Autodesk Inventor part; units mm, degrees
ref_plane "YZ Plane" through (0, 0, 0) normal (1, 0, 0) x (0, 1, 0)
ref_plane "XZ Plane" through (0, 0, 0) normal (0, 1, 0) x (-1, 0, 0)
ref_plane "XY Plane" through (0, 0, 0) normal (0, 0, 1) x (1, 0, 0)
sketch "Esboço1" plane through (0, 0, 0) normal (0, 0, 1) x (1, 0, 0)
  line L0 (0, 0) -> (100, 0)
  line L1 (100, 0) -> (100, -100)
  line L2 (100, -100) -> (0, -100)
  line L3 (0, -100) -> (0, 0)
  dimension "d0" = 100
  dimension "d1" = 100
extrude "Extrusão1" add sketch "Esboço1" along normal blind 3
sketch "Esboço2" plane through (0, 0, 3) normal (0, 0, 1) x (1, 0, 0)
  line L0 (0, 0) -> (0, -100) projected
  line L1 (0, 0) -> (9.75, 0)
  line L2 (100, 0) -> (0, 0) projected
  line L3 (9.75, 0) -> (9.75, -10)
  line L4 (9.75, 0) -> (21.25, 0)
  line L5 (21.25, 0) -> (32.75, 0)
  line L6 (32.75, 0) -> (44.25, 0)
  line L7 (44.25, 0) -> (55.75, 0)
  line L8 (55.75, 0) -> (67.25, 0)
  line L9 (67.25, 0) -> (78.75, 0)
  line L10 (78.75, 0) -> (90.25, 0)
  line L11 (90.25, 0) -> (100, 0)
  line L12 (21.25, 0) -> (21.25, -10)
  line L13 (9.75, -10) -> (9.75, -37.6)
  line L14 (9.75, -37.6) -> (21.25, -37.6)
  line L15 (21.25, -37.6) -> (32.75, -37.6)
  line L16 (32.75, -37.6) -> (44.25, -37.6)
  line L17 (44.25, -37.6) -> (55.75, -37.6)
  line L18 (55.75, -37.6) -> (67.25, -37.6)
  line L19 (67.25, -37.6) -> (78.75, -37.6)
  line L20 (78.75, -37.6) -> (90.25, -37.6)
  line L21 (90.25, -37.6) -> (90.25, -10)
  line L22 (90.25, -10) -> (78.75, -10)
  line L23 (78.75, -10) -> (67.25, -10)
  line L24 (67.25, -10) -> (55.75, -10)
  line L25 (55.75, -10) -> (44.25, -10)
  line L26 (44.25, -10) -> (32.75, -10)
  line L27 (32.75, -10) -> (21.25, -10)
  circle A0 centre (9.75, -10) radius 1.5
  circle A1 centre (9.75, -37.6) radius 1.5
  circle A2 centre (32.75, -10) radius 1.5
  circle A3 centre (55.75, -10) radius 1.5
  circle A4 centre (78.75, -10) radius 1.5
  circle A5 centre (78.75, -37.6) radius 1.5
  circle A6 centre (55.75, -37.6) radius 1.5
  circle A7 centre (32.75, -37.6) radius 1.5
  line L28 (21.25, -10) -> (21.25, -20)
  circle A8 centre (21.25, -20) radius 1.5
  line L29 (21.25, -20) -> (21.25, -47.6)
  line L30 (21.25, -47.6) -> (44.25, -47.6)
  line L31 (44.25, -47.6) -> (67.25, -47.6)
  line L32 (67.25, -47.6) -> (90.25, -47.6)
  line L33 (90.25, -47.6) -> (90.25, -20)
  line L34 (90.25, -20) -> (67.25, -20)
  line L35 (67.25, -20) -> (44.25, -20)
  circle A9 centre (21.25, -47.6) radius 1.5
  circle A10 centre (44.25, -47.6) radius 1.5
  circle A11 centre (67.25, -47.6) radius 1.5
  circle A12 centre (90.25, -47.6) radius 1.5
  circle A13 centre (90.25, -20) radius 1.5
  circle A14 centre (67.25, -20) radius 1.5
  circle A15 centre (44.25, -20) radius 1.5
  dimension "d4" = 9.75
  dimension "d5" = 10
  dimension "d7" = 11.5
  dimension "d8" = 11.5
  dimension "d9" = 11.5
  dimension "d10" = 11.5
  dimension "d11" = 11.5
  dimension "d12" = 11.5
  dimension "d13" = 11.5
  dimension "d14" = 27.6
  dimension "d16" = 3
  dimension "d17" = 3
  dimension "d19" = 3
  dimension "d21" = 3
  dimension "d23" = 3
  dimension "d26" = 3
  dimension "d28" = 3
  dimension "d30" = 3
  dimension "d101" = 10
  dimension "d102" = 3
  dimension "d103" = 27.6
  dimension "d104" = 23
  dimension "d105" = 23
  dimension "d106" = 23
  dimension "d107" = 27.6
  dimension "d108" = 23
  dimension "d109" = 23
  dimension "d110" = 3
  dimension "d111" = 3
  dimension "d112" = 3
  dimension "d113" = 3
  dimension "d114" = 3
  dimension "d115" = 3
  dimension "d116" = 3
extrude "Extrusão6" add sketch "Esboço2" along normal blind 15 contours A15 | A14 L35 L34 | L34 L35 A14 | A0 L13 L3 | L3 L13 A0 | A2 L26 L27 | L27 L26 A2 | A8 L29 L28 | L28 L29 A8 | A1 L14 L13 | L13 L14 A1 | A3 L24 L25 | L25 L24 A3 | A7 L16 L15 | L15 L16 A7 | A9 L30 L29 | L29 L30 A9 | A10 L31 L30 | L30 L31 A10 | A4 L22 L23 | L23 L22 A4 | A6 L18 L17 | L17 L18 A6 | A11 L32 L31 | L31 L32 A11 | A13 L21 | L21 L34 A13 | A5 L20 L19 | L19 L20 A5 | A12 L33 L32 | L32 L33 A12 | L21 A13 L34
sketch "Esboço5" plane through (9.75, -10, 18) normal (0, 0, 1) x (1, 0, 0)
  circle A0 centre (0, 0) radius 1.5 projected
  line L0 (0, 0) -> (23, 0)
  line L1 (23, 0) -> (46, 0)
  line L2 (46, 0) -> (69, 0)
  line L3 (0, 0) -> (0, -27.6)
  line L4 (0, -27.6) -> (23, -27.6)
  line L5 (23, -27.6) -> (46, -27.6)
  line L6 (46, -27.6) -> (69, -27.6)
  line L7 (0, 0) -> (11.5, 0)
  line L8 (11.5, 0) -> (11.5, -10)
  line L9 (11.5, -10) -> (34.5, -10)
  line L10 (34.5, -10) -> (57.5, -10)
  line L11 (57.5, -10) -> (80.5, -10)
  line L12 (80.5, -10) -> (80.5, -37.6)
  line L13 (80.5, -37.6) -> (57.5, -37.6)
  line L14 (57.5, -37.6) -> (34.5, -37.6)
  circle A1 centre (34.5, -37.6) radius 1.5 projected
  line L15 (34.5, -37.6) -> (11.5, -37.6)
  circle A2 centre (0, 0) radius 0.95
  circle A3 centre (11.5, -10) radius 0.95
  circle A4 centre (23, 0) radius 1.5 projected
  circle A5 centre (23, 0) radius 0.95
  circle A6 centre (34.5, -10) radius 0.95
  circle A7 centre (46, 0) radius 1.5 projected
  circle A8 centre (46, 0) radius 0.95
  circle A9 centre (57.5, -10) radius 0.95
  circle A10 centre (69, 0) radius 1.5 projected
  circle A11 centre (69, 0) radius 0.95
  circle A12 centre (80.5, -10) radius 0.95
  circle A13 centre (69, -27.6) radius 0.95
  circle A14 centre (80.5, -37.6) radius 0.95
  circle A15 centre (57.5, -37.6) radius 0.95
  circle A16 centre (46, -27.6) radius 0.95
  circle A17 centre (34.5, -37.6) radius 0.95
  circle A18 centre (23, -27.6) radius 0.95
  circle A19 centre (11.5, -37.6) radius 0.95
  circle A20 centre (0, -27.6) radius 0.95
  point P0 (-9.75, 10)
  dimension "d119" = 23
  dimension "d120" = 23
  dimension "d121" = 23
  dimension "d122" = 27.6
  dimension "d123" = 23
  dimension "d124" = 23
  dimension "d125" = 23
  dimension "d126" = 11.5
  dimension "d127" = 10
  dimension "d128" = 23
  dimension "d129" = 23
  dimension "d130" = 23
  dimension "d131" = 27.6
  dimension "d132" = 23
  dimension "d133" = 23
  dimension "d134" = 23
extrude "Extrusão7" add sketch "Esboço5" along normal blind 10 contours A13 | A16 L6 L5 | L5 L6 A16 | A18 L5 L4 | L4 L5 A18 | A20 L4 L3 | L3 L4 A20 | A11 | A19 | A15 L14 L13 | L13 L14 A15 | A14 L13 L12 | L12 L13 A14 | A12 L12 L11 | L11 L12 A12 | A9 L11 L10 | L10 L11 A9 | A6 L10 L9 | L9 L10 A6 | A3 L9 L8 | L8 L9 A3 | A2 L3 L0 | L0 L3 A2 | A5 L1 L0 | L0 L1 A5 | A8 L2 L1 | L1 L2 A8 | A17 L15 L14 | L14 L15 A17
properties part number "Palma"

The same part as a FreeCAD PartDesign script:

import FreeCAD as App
import Part
import Sketcher


def add_polygon(sketch, points):
    """Adds a closed chain of lines whose ends are joined by coincident constraints."""
    first, n = sketch.GeometryCount, len(points)
    for a, b in zip(points, points[1:] + points[:1]):
        sketch.addGeometry(Part.LineSegment(App.Vector(*a, 0), App.Vector(*b, 0)), False)
    for i in range(n):
        sketch.addConstraint(Sketcher.Constraint("Coincident", first + i, 2, first + (i + 1) % n, 1))

doc = App.newDocument("Part")
body = doc.addObject("PartDesign::Body", "Body")

# Sketch on XY plane
sketch1 = body.newObject("Sketcher::SketchObject", "Sketch")
sketch1.AttachmentSupport = (doc.getObject("XY_Plane"), [""])
sketch1.MapMode = "FlatFace"
add_polygon(sketch1, [(100, 0), (0, 0), (0, -100), (100, -100)])  # lines 0-3
sketch1.addConstraint(Sketcher.Constraint("Horizontal", 0))
sketch1.addConstraint(Sketcher.Constraint("Vertical", 1))
sketch1.addConstraint(Sketcher.Constraint("Horizontal", 2))
sketch1.addConstraint(Sketcher.Constraint("Vertical", 3))
sketch1.addConstraint(Sketcher.Constraint("Coincident", 0, 2, -1, 1))
sketch1.addConstraint(Sketcher.Constraint("Equal", 2, 1))
sketch1.addConstraint(Sketcher.Constraint("DistanceX", 0, 2, 0, 1, 100.0))
pad1 = body.newObject("PartDesign::Pad", "Pad")
pad1.Profile = sketch1
pad1.Length = 3

# Sketch on XY plane
sketch2 = body.newObject("Sketcher::SketchObject", "Sketch001")
sketch2.AttachmentSupport = (doc.getObject("XY_Plane"), [""])
sketch2.MapMode = "FlatFace"
sketch2.AttachmentOffset = App.Placement(App.Vector(0, 0, 3), App.Rotation())
sketch2.addGeometry(Part.Circle(App.Vector(44.2, -20, 0), App.Vector(0, 0, 1), 1.5), False)
sketch2.addGeometry(Part.Circle(App.Vector(67.2, -20, 0), App.Vector(0, 0, 1), 1.5), False)
sketch2.addGeometry(Part.Circle(App.Vector(9.8, -10, 0), App.Vector(0, 0, 1), 1.5), False)
sketch2.addGeometry(Part.Circle(App.Vector(32.8, -10, 0), App.Vector(0, 0, 1), 1.5), False)
sketch2.addGeometry(Part.Circle(App.Vector(21.2, -20, 0), App.Vector(0, 0, 1), 1.5), False)
sketch2.addGeometry(Part.Circle(App.Vector(9.8, -37.6, 0), App.Vector(0, 0, 1), 1.5), False)
sketch2.addGeometry(Part.Circle(App.Vector(55.8, -10, 0), App.Vector(0, 0, 1), 1.5), False)
sketch2.addGeometry(Part.Circle(App.Vector(32.8, -37.6, 0), App.Vector(0, 0, 1), 1.5), False)
sketch2.addGeometry(Part.Circle(App.Vector(21.2, -47.6, 0), App.Vector(0, 0, 1), 1.5), False)
sketch2.addGeometry(Part.Circle(App.Vector(44.2, -47.6, 0), App.Vector(0, 0, 1), 1.5), False)
sketch2.addGeometry(Part.Circle(App.Vector(78.8, -10, 0), App.Vector(0, 0, 1), 1.5), False)
sketch2.addGeometry(Part.Circle(App.Vector(55.8, -37.6, 0), App.Vector(0, 0, 1), 1.5), False)
sketch2.addGeometry(Part.Circle(App.Vector(67.2, -47.6, 0), App.Vector(0, 0, 1), 1.5), False)
sketch2.addGeometry(Part.Circle(App.Vector(90.2, -20, 0), App.Vector(0, 0, 1), 1.5), False)
sketch2.addGeometry(Part.Circle(App.Vector(78.8, -37.6, 0), App.Vector(0, 0, 1), 1.5), False)
sketch2.addGeometry(Part.Circle(App.Vector(90.2, -47.6, 0), App.Vector(0, 0, 1), 1.5), False)
sketch2.addConstraint(Sketcher.Constraint("Equal", 0, 1))
sketch2.addConstraint(Sketcher.Constraint("Equal", 1, 2))
sketch2.addConstraint(Sketcher.Constraint("Equal", 2, 3))
sketch2.addConstraint(Sketcher.Constraint("Equal", 3, 4))
sketch2.addConstraint(Sketcher.Constraint("Equal", 4, 5))
sketch2.addConstraint(Sketcher.Constraint("Equal", 5, 6))
sketch2.addConstraint(Sketcher.Constraint("Equal", 6, 7))
sketch2.addConstraint(Sketcher.Constraint("Equal", 7, 8))
sketch2.addConstraint(Sketcher.Constraint("Equal", 8, 9))
sketch2.addConstraint(Sketcher.Constraint("Equal", 9, 10))
sketch2.addConstraint(Sketcher.Constraint("Equal", 10, 11))
sketch2.addConstraint(Sketcher.Constraint("Equal", 11, 12))
sketch2.addConstraint(Sketcher.Constraint("Equal", 12, 13))
sketch2.addConstraint(Sketcher.Constraint("Equal", 13, 14))
sketch2.addConstraint(Sketcher.Constraint("Equal", 14, 15))
sketch2.addConstraint(Sketcher.Constraint("Horizontal", 0, 3, 1, 3))
sketch2.addConstraint(Sketcher.Constraint("Horizontal", 2, 3, 3, 3))
sketch2.addConstraint(Sketcher.Constraint("Horizontal", 1, 3, 4, 3))
sketch2.addConstraint(Sketcher.Constraint("Horizontal", 3, 3, 6, 3))
sketch2.addConstraint(Sketcher.Constraint("Horizontal", 5, 3, 7, 3))
sketch2.addConstraint(Sketcher.Constraint("Horizontal", 8, 3, 9, 3))
sketch2.addConstraint(Sketcher.Constraint("Horizontal", 6, 3, 10, 3))
sketch2.addConstraint(Sketcher.Constraint("Horizontal", 7, 3, 11, 3))
sketch2.addConstraint(Sketcher.Constraint("Horizontal", 9, 3, 12, 3))
sketch2.addConstraint(Sketcher.Constraint("Horizontal", 4, 3, 13, 3))
sketch2.addConstraint(Sketcher.Constraint("Horizontal", 11, 3, 14, 3))
sketch2.addConstraint(Sketcher.Constraint("Horizontal", 12, 3, 15, 3))
sketch2.addConstraint(Sketcher.Constraint("Vertical", 2, 3, 5, 3))
sketch2.addConstraint(Sketcher.Constraint("Vertical", 3, 3, 7, 3))
sketch2.addConstraint(Sketcher.Constraint("Vertical", 4, 3, 8, 3))
sketch2.addConstraint(Sketcher.Constraint("Vertical", 0, 3, 9, 3))
sketch2.addConstraint(Sketcher.Constraint("Vertical", 6, 3, 11, 3))
sketch2.addConstraint(Sketcher.Constraint("Vertical", 1, 3, 12, 3))
sketch2.addConstraint(Sketcher.Constraint("Vertical", 10, 3, 14, 3))
sketch2.addConstraint(Sketcher.Constraint("Vertical", 13, 3, 15, 3))
sketch2.addConstraint(Sketcher.Constraint("Diameter", 0, 3.0))
sketch2.addConstraint(Sketcher.Constraint("DistanceY", 2, 3, -1, 1, 10.0))
sketch2.addConstraint(Sketcher.Constraint("DistanceX", 0, 3, 1, 3, 23.0))
sketch2.addConstraint(Sketcher.Constraint("DistanceY", 0, 3, 2, 3, 10.0))
sketch2.addConstraint(Sketcher.Constraint("DistanceX", 2, 3, 3, 3, 23.0))
sketch2.addConstraint(Sketcher.Constraint("DistanceX", 4, 3, 0, 3, 23.0))
sketch2.addConstraint(Sketcher.Constraint("DistanceX", 3, 3, 6, 3, 23.0))
sketch2.addConstraint(Sketcher.Constraint("DistanceY", 8, 3, 5, 3, 10.0))
sketch2.addConstraint(Sketcher.Constraint("DistanceX", 6, 3, 10, 3, 23.0))
sketch2.addConstraint(Sketcher.Constraint("DistanceX", 1, 3, 13, 3, 23.0))
sketch2.addConstraint(Sketcher.Constraint("DistanceX", 3, 3, 0, 3, 11.5))
sketch2.addConstraint(Sketcher.Constraint("DistanceY", 5, 3, 2, 3, 27.6))
sketch2.addConstraint(Sketcher.Constraint("DistanceX", -1, 1, 2, 3, 9.75))
pad2 = body.newObject("PartDesign::Pad", "Pad001")
pad2.Profile = sketch2
pad2.Length = 15

# Sketch on XY plane
sketch3 = body.newObject("Sketcher::SketchObject", "Sketch002")
sketch3.AttachmentSupport = (doc.getObject("XY_Plane"), [""])
sketch3.MapMode = "FlatFace"
sketch3.AttachmentOffset = App.Placement(App.Vector(0, 0, 18), App.Rotation())
sketch3.addGeometry(Part.Circle(App.Vector(78.8, -37.6, 0), App.Vector(0, 0, 1), 0.9), False)
sketch3.addGeometry(Part.Circle(App.Vector(55.8, -37.6, 0), App.Vector(0, 0, 1), 0.9), False)
sketch3.addGeometry(Part.Circle(App.Vector(32.8, -37.6, 0), App.Vector(0, 0, 1), 0.9), False)
sketch3.addGeometry(Part.Circle(App.Vector(9.8, -37.6, 0), App.Vector(0, 0, 1), 0.9), False)
sketch3.addGeometry(Part.Circle(App.Vector(78.8, -10, 0), App.Vector(0, 0, 1), 0.9), False)
sketch3.addGeometry(Part.Circle(App.Vector(21.2, -47.6, 0), App.Vector(0, 0, 1), 0.9), False)
sketch3.addGeometry(Part.Circle(App.Vector(67.2, -47.6, 0), App.Vector(0, 0, 1), 0.9), False)
sketch3.addGeometry(Part.Circle(App.Vector(90.2, -47.6, 0), App.Vector(0, 0, 1), 0.9), False)
sketch3.addGeometry(Part.Circle(App.Vector(90.2, -20, 0), App.Vector(0, 0, 1), 0.9), False)
sketch3.addGeometry(Part.Circle(App.Vector(67.2, -20, 0), App.Vector(0, 0, 1), 0.9), False)
sketch3.addGeometry(Part.Circle(App.Vector(44.2, -20, 0), App.Vector(0, 0, 1), 0.9), False)
sketch3.addGeometry(Part.Circle(App.Vector(21.2, -20, 0), App.Vector(0, 0, 1), 0.9), False)
sketch3.addGeometry(Part.Circle(App.Vector(9.8, -10, 0), App.Vector(0, 0, 1), 0.9), False)
sketch3.addGeometry(Part.Circle(App.Vector(32.8, -10, 0), App.Vector(0, 0, 1), 0.9), False)
sketch3.addGeometry(Part.Circle(App.Vector(55.8, -10, 0), App.Vector(0, 0, 1), 0.9), False)
sketch3.addGeometry(Part.Circle(App.Vector(44.2, -47.6, 0), App.Vector(0, 0, 1), 0.9), False)
sketch3.addConstraint(Sketcher.Constraint("Equal", 0, 1))
sketch3.addConstraint(Sketcher.Constraint("Equal", 1, 2))
sketch3.addConstraint(Sketcher.Constraint("Equal", 2, 3))
sketch3.addConstraint(Sketcher.Constraint("Equal", 3, 4))
sketch3.addConstraint(Sketcher.Constraint("Equal", 4, 5))
sketch3.addConstraint(Sketcher.Constraint("Equal", 5, 6))
sketch3.addConstraint(Sketcher.Constraint("Equal", 6, 7))
sketch3.addConstraint(Sketcher.Constraint("Equal", 7, 8))
sketch3.addConstraint(Sketcher.Constraint("Equal", 8, 9))
sketch3.addConstraint(Sketcher.Constraint("Equal", 9, 10))
sketch3.addConstraint(Sketcher.Constraint("Equal", 10, 11))
sketch3.addConstraint(Sketcher.Constraint("Equal", 11, 12))
sketch3.addConstraint(Sketcher.Constraint("Equal", 12, 13))
sketch3.addConstraint(Sketcher.Constraint("Equal", 13, 14))
sketch3.addConstraint(Sketcher.Constraint("Equal", 14, 15))
sketch3.addConstraint(Sketcher.Constraint("Horizontal", 0, 3, 1, 3))
sketch3.addConstraint(Sketcher.Constraint("Horizontal", 1, 3, 2, 3))
sketch3.addConstraint(Sketcher.Constraint("Horizontal", 2, 3, 3, 3))
sketch3.addConstraint(Sketcher.Constraint("Horizontal", 5, 3, 6, 3))
sketch3.addConstraint(Sketcher.Constraint("Horizontal", 6, 3, 7, 3))
sketch3.addConstraint(Sketcher.Constraint("Horizontal", 8, 3, 9, 3))
sketch3.addConstraint(Sketcher.Constraint("Horizontal", 9, 3, 10, 3))
sketch3.addConstraint(Sketcher.Constraint("Horizontal", 10, 3, 11, 3))
sketch3.addConstraint(Sketcher.Constraint("Horizontal", 4, 3, 12, 3))
sketch3.addConstraint(Sketcher.Constraint("Horizontal", 12, 3, 13, 3))
sketch3.addConstraint(Sketcher.Constraint("Horizontal", 13, 3, 14, 3))
sketch3.addConstraint(Sketcher.Constraint("Horizontal", 7, 3, 15, 3))
sketch3.addConstraint(Sketcher.Constraint("Vertical", 0, 3, 4, 3))
sketch3.addConstraint(Sketcher.Constraint("Vertical", 7, 3, 8, 3))
sketch3.addConstraint(Sketcher.Constraint("Vertical", 6, 3, 9, 3))
sketch3.addConstraint(Sketcher.Constraint("Vertical", 5, 3, 11, 3))
sketch3.addConstraint(Sketcher.Constraint("Vertical", 3, 3, 12, 3))
sketch3.addConstraint(Sketcher.Constraint("Vertical", 2, 3, 13, 3))
sketch3.addConstraint(Sketcher.Constraint("Vertical", 1, 3, 14, 3))
sketch3.addConstraint(Sketcher.Constraint("Vertical", 10, 3, 15, 3))
sketch3.addConstraint(Sketcher.Constraint("DistanceY", 4, 3, -1, 1, 10.0))
sketch3.addConstraint(Sketcher.Constraint("DistanceX", 1, 3, 0, 3, 23.0))
sketch3.addConstraint(Sketcher.Constraint("DistanceX", 2, 3, 1, 3, 23.0))
sketch3.addConstraint(Sketcher.Constraint("DistanceX", 3, 3, 2, 3, 23.0))
sketch3.addConstraint(Sketcher.Constraint("DistanceY", 5, 3, 2, 3, 10.0))
sketch3.addConstraint(Sketcher.Constraint("DistanceX", 6, 3, 7, 3, 23.0))
sketch3.addConstraint(Sketcher.Constraint("DistanceY", 8, 3, 4, 3, 10.0))
sketch3.addConstraint(Sketcher.Constraint("DistanceX", 10, 3, 9, 3, 23.0))
sketch3.addConstraint(Sketcher.Constraint("DistanceX", 5, 3, 10, 3, 23.0))
sketch3.addConstraint(Sketcher.Constraint("Diameter", 0, 1.9))
sketch3.addConstraint(Sketcher.Constraint("DistanceY", 0, 3, 4, 3, 27.6))
sketch3.addConstraint(Sketcher.Constraint("DistanceX", 5, 3, 2, 3, 11.5))
sketch3.addConstraint(Sketcher.Constraint("DistanceX", -1, 1, 0, 3, 78.75))
pad3 = body.newObject("PartDesign::Pad", "Pad002")
pad3.Profile = sketch3
pad3.Length = 10

doc.recompute()
